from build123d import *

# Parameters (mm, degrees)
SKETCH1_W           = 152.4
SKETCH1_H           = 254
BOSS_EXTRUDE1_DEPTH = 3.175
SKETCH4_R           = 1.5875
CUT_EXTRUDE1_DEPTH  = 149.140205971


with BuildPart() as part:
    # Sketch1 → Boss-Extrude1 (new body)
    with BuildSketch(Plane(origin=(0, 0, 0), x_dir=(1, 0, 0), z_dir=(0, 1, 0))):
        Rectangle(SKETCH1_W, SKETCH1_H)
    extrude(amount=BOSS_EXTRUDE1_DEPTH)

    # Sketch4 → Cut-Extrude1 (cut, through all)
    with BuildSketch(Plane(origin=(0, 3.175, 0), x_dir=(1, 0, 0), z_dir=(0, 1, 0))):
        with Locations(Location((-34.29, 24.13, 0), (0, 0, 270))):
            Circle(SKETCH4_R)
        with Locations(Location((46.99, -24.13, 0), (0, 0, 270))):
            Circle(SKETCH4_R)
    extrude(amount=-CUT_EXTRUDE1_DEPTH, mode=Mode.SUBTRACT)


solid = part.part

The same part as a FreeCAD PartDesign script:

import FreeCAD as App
import Part
import Sketcher

V = App.Vector
Q = App.Units.Quantity

doc = App.newDocument("Part")
body = doc.addObject("PartDesign::Body", "Body")

# Sketch on XZ plane
sketch1 = doc.addObject("Sketcher::SketchObject", "Sketch")
body.addObject(sketch1)
sketch1.AttachmentSupport = (doc.XZ_Plane, [""])
sketch1.MapMode = "FlatFace"
sketch1.addGeometry([
    Part.LineSegment(V(-76, -127, 0), V(-76, 127, 0)),
    Part.LineSegment(V(-76, 127, 0), V(76, 127, 0)),
    Part.LineSegment(V(76, 127, 0), V(76, -127, 0)),
    Part.LineSegment(V(76, -127, 0), V(-76, -127, 0)),
], False)
sketch1.addConstraint([
    Sketcher.Constraint("Coincident", 0, 2, 1, 1),
    Sketcher.Constraint("Coincident", 1, 2, 2, 1),
    Sketcher.Constraint("Coincident", 2, 2, 3, 1),
    Sketcher.Constraint("Coincident", 3, 2, 0, 1),
    Sketcher.Constraint("Vertical", 0),
    Sketcher.Constraint("Horizontal", 1),
    Sketcher.Constraint("Vertical", 2),
    Sketcher.Constraint("Horizontal", 3),
    Sketcher.Constraint("Symmetric", 0, 2, 2, 2, -1, 1),
    Sketcher.Constraint("DistanceX", 1, 1, 1, 2, Q("6 in")),
    Sketcher.Constraint("DistanceY", 0, 1, 0, 2, Q("10 in")),
])
pad1 = doc.addObject("PartDesign::Pad", "Pad")
body.addObject(pad1)
pad1.Profile = sketch1
pad1.Length = Q("0.125 in")
pad1.Reversed = True

# Sketch on XZ plane
sketch2 = doc.addObject("Sketcher::SketchObject", "Sketch001")
body.addObject(sketch2)
sketch2.AttachmentSupport = (doc.XZ_Plane, [""])
sketch2.MapMode = "FlatFace"
sketch2.AttachmentOffset = App.Placement(V(0, 0, -0.125 * 25.4), App.Rotation())
sketch2.addGeometry([
    Part.Circle(V(-34.3, -24.1, 0), V(0, 0, 1), 1.6),
    Part.Circle(V(47, 24.1, 0), V(0, 0, 1), 1.6),
], False)
sketch2.addConstraint([
    Sketcher.Constraint("Equal", 0, 1),
    Sketcher.Constraint("Diameter", 0, Q("0.125 in")),
    Sketcher.Constraint("DistanceX", 0, 3, 1, 3, Q("3.2 in")),
    Sketcher.Constraint("DistanceY", 0, 3, 1, 3, Q("1.9 in")),
    Sketcher.Constraint("DistanceX", 0, 3, -1, 1, Q("1.35 in")),
    Sketcher.Constraint("DistanceY", 0, 3, -1, 1, Q("0.95 in")),
])
pocket1 = doc.addObject("PartDesign::Pocket", "Pocket")
body.addObject(pocket1)
pocket1.Profile = sketch2
pocket1.Type = "ThroughAll"
pocket1.Reversed = True

doc.recompute()
